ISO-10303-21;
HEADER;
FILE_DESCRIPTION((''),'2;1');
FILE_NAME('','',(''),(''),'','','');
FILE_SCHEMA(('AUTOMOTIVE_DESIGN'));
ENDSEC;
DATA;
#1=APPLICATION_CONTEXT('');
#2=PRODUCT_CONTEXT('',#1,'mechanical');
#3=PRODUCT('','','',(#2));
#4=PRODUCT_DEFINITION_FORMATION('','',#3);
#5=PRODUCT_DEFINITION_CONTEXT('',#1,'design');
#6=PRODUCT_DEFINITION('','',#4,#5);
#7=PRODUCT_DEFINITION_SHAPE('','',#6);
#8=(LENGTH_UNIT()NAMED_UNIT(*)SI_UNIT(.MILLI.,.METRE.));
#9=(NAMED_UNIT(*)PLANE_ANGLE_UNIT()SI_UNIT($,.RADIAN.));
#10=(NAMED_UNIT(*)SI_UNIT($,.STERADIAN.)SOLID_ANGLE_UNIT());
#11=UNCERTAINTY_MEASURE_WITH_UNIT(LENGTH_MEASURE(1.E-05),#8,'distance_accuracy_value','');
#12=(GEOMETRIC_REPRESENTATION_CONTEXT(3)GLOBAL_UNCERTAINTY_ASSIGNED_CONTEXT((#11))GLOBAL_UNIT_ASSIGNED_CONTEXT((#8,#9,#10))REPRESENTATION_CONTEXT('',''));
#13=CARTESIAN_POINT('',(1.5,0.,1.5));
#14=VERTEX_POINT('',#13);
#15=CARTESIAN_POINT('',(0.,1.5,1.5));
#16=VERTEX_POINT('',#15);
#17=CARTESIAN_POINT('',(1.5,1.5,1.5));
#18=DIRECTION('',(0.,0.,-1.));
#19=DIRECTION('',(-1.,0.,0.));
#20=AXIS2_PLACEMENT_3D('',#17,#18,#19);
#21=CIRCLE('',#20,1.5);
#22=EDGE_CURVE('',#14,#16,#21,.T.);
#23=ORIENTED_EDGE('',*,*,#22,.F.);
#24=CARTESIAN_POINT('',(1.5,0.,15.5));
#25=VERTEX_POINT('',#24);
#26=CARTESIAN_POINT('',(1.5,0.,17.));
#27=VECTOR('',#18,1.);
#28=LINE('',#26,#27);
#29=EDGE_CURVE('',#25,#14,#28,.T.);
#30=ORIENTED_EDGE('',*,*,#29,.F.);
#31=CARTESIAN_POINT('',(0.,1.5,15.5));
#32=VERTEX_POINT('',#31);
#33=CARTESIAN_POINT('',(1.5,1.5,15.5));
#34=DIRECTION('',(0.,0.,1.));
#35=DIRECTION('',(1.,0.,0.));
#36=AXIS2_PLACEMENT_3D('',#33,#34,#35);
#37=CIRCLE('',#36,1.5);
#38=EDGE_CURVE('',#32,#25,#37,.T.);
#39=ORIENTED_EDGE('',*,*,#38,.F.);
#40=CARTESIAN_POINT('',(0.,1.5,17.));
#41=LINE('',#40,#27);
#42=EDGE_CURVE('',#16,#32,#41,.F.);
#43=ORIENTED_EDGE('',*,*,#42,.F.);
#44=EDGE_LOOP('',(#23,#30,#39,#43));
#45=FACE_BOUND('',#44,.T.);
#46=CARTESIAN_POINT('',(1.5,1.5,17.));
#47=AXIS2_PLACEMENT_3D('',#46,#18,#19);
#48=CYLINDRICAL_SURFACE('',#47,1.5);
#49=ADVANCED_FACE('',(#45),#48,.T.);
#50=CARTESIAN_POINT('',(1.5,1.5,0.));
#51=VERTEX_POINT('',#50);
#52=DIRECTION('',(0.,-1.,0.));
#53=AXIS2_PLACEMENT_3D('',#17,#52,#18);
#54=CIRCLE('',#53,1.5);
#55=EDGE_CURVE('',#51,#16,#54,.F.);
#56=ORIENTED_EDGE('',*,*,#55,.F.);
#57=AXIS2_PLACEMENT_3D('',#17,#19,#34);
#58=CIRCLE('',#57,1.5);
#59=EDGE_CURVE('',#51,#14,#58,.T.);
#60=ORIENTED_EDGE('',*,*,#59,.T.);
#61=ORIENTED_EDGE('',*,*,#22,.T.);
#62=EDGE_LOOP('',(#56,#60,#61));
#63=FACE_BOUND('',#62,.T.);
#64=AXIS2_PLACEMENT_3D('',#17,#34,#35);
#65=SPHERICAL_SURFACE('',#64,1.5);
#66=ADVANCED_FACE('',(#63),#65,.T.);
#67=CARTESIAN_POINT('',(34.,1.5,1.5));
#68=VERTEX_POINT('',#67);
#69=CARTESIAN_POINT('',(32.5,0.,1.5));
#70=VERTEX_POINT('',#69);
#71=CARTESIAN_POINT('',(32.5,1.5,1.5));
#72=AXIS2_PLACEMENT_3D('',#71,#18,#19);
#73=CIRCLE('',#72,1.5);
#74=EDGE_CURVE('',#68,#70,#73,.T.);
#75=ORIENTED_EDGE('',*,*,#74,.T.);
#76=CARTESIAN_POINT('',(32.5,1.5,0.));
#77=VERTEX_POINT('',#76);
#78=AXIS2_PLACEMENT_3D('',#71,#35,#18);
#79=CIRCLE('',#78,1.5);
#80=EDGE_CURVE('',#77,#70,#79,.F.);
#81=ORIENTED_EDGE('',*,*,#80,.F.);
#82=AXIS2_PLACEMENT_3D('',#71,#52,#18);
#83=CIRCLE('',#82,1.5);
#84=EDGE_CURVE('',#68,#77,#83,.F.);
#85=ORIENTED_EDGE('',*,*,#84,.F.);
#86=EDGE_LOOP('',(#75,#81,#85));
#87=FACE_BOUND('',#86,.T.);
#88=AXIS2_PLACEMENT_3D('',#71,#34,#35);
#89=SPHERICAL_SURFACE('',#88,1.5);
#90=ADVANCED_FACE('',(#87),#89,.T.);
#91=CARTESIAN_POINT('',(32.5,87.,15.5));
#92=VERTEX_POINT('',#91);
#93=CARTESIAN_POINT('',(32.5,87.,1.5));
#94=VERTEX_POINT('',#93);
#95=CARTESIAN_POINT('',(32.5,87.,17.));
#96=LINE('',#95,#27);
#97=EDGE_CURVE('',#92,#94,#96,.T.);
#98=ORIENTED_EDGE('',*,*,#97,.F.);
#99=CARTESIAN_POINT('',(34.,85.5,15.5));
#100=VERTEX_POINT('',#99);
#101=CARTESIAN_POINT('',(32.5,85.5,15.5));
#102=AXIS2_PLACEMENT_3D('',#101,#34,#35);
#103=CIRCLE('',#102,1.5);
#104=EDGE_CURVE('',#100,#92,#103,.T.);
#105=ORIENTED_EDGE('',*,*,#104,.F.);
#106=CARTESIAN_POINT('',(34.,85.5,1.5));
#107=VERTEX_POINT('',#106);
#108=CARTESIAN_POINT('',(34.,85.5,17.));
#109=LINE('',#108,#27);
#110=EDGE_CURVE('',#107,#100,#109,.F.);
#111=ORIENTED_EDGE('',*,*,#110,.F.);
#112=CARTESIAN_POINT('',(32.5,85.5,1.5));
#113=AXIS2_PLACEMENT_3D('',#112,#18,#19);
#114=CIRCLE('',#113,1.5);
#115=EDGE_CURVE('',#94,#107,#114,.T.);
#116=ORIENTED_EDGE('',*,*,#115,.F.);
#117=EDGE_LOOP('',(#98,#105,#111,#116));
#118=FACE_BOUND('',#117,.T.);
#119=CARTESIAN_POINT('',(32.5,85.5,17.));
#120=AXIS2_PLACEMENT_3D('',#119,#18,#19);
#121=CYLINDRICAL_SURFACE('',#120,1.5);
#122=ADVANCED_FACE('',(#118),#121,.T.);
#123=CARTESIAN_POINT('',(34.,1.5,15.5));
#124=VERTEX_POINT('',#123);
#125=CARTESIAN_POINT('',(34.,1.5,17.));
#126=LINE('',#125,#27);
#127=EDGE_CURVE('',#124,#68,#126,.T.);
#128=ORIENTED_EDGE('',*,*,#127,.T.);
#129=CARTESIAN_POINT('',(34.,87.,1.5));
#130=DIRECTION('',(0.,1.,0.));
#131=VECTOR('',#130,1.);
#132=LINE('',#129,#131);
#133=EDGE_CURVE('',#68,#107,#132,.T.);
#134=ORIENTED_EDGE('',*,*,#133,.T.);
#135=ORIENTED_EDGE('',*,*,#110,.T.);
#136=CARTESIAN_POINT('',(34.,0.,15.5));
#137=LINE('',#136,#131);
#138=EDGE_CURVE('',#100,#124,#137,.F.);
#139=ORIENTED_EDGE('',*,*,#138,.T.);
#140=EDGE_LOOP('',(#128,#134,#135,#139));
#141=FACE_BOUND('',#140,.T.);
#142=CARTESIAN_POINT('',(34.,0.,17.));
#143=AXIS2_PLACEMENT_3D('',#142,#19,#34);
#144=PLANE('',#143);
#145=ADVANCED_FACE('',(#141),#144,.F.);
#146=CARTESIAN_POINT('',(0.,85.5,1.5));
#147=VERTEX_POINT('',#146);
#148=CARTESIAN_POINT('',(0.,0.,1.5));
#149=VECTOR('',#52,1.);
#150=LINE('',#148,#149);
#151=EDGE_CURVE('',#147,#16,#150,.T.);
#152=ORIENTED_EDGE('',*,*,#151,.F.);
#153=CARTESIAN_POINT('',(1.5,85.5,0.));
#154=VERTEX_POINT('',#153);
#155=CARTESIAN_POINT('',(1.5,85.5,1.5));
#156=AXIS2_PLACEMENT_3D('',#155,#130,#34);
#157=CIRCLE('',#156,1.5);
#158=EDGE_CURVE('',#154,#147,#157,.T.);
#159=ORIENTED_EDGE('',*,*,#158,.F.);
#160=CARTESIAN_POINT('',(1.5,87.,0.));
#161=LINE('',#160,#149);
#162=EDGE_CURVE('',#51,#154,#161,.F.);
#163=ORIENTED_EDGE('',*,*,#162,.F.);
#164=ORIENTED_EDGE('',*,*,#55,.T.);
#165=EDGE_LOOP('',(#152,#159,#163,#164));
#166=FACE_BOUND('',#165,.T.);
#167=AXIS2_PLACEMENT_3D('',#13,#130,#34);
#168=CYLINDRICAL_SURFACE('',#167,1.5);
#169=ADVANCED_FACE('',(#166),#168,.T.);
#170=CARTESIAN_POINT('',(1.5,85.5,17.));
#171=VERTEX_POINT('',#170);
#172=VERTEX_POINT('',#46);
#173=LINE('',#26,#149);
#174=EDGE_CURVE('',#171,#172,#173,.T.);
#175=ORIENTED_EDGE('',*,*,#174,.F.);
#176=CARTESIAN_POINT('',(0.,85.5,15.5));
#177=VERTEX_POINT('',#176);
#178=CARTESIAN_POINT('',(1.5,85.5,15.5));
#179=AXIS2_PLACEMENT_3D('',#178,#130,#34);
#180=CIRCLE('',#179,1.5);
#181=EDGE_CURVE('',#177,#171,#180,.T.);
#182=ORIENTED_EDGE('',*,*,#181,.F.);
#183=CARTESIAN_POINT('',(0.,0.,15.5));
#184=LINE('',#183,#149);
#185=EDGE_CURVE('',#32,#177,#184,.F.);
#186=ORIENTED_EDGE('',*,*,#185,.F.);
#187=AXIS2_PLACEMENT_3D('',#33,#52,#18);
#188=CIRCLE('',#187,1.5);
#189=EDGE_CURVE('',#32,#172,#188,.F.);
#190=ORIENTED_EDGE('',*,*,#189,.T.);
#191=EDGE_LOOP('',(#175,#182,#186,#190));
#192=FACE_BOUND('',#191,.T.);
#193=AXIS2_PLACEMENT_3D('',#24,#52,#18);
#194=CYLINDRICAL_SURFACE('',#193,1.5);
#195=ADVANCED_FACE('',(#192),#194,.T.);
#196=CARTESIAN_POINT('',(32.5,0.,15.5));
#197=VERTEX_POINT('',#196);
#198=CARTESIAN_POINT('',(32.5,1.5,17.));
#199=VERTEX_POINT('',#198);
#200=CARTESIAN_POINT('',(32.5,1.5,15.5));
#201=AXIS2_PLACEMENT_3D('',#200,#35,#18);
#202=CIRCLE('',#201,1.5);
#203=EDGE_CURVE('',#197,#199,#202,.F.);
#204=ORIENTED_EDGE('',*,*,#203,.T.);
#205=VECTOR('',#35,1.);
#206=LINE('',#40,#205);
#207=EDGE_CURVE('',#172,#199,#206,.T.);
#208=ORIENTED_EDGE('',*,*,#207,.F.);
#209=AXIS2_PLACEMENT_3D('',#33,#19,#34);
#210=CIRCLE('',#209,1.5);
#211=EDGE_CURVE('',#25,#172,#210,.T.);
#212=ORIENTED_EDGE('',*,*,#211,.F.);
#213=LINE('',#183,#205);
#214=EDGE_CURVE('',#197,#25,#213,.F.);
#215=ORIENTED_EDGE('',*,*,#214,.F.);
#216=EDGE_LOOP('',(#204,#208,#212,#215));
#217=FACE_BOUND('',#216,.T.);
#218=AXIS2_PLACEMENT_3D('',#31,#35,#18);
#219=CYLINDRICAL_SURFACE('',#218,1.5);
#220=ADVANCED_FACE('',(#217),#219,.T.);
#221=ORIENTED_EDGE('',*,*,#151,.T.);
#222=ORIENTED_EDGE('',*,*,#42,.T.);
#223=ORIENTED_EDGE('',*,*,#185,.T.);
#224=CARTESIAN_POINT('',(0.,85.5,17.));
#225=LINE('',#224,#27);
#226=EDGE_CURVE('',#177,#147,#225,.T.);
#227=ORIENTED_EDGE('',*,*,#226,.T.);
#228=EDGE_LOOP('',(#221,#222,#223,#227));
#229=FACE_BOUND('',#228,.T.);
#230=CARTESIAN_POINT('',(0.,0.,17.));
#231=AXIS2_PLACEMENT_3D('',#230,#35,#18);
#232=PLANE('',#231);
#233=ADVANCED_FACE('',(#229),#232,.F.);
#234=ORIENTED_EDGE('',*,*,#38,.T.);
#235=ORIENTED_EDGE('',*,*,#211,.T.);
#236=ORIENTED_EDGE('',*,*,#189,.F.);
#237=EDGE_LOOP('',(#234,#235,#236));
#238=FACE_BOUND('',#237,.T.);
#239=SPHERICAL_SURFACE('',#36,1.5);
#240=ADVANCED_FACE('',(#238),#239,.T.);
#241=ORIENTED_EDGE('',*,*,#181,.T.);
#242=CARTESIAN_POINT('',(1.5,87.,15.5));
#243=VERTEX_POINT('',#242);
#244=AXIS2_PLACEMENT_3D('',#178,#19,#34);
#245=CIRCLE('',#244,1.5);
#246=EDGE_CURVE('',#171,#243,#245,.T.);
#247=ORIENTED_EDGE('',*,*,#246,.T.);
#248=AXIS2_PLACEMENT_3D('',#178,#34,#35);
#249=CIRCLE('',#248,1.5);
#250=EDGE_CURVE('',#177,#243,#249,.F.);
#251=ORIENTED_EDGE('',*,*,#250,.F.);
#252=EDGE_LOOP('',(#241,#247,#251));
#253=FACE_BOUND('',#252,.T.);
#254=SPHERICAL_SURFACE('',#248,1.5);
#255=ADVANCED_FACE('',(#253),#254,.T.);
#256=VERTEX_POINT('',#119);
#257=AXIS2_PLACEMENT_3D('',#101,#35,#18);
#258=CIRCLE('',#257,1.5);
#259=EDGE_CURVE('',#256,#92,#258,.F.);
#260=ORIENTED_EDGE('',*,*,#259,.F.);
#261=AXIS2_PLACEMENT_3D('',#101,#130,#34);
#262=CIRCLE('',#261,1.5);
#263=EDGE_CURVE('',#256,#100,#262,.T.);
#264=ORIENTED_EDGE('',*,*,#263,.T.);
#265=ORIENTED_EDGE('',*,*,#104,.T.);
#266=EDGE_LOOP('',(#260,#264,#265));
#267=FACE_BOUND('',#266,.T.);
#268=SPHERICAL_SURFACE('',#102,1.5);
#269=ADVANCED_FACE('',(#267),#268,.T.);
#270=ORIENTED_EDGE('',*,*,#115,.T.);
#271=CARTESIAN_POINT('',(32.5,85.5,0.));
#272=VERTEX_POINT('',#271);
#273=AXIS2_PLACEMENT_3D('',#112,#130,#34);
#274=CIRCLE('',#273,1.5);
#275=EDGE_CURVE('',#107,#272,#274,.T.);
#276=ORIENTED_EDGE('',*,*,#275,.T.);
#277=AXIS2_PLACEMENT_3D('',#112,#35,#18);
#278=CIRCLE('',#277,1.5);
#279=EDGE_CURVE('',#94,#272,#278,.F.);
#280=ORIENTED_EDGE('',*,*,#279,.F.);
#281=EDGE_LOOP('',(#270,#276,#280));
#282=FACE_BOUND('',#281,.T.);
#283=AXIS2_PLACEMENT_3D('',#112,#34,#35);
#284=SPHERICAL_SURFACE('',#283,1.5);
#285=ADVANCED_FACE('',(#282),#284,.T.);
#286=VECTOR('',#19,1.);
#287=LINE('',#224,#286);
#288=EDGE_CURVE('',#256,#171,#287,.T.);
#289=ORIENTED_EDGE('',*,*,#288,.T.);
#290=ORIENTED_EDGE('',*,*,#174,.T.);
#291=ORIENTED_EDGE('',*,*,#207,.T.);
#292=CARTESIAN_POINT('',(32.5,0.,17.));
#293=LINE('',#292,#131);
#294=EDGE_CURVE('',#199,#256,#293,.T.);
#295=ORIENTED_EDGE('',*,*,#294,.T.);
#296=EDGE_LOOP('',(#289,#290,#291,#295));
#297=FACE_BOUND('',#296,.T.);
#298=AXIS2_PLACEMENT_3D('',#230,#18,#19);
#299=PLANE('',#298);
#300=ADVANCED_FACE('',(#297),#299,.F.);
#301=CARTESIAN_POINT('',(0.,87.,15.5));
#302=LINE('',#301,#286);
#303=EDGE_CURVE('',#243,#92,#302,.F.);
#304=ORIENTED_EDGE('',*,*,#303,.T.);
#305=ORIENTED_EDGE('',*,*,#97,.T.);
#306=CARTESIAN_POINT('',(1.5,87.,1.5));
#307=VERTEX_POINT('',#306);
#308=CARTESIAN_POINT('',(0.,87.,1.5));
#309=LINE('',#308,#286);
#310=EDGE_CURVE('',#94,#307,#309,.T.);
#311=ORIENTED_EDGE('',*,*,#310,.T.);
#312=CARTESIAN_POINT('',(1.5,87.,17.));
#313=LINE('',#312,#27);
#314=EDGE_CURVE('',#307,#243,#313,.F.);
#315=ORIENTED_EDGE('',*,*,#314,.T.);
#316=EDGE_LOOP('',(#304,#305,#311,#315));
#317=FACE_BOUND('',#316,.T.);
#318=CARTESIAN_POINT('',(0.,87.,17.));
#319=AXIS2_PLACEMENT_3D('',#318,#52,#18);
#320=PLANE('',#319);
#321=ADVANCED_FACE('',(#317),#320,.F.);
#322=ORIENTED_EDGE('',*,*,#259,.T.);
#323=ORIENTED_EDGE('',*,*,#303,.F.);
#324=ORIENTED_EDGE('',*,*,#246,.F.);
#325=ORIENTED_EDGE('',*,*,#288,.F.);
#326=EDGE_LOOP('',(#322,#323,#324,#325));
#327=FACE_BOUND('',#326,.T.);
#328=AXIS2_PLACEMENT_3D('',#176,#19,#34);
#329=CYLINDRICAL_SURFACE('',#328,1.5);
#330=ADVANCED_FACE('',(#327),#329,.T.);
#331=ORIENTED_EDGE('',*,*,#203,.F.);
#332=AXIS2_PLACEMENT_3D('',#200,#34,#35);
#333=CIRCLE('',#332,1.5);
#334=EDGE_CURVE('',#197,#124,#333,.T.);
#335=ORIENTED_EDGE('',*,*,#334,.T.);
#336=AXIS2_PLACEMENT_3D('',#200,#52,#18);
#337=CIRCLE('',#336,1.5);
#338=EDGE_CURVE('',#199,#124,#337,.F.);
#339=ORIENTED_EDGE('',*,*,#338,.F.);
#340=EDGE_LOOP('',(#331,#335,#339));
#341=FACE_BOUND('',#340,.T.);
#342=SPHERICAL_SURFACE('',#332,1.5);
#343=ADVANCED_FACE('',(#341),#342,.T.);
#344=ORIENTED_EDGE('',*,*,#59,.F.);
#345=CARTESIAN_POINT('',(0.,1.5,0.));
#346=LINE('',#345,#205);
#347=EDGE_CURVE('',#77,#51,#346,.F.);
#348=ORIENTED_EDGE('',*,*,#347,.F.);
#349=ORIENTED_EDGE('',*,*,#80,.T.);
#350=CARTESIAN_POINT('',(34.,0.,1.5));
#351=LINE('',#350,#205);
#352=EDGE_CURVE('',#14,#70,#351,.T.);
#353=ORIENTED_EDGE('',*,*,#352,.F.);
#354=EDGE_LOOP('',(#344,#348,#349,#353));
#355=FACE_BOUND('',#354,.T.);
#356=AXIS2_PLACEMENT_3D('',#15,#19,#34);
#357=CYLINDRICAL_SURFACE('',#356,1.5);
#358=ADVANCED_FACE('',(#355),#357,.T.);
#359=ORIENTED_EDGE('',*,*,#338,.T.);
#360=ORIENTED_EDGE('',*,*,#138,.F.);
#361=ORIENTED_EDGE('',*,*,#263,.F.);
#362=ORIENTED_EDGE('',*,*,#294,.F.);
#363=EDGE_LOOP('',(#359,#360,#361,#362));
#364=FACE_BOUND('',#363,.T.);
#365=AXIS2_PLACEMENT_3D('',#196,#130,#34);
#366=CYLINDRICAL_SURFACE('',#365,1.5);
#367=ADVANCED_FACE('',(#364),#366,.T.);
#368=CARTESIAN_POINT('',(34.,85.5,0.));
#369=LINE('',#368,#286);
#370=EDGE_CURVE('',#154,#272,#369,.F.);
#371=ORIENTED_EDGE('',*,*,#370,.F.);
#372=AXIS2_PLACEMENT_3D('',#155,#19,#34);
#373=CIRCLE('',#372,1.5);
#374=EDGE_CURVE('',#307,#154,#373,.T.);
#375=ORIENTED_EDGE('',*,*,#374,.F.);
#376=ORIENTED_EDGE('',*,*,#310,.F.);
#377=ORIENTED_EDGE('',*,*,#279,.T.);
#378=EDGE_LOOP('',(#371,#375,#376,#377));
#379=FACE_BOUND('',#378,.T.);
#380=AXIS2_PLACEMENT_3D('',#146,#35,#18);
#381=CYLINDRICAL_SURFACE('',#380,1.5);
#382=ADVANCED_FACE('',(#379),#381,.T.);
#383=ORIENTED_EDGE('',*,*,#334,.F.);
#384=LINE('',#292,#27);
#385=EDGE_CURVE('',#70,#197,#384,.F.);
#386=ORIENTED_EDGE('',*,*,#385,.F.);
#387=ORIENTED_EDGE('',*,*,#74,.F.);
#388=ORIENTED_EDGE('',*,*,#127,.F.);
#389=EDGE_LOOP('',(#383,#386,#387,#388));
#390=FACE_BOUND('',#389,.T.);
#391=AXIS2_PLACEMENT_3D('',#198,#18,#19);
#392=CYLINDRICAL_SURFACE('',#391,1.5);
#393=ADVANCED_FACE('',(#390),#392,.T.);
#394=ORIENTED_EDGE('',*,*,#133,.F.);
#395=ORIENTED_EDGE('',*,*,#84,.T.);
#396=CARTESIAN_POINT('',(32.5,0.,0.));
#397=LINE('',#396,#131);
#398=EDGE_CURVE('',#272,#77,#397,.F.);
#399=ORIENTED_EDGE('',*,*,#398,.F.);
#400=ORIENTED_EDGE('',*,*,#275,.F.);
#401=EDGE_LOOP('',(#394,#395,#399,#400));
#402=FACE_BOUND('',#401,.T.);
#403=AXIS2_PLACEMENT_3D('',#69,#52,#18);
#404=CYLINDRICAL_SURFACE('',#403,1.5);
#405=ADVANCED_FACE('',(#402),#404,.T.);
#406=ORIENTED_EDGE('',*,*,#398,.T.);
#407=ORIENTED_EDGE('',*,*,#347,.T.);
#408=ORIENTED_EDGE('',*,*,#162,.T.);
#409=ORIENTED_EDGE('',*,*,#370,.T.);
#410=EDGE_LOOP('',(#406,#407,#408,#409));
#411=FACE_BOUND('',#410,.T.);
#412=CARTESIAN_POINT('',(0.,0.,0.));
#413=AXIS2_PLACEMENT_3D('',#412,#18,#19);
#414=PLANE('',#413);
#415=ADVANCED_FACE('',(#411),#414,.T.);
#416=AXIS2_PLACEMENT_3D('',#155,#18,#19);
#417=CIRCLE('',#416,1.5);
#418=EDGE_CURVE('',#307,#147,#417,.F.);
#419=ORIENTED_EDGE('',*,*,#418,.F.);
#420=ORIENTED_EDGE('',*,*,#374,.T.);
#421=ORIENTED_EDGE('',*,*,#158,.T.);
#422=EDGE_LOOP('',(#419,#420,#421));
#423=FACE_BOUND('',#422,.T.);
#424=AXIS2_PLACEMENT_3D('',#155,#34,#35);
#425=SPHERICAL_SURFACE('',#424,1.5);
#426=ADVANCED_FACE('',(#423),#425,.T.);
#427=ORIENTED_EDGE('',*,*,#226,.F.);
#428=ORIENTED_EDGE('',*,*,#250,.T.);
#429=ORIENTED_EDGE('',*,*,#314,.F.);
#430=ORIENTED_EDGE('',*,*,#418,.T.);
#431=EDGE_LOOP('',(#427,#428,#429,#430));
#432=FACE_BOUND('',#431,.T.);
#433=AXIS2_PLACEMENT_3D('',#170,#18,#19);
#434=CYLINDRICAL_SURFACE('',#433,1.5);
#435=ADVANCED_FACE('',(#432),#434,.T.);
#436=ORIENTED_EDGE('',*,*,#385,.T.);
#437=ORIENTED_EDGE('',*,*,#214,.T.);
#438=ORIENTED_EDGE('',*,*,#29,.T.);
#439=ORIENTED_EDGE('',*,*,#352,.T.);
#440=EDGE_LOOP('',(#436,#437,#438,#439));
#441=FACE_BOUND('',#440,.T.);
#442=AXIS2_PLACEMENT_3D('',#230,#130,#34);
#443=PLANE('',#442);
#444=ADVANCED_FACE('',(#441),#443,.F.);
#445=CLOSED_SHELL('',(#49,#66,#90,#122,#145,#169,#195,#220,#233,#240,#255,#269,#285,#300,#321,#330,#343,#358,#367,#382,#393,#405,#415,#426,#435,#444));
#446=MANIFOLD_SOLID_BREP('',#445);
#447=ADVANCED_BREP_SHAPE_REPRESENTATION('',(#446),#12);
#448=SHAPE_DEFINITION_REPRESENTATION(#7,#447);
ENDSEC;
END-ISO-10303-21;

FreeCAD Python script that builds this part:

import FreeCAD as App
import Part
import Sketcher
Q = App.Units.Quantity


def add_polygon(sketch, points):
    """Adds a closed chain of lines whose ends are joined by coincident constraints."""
    first, n = sketch.GeometryCount, len(points)
    for a, b in zip(points, points[1:] + points[:1]):
        sketch.addGeometry(Part.LineSegment(App.Vector(*a, 0), App.Vector(*b, 0)), False)
    for i in range(n):
        sketch.addConstraint(Sketcher.Constraint("Coincident", first + i, 2, first + (i + 1) % n, 1))

doc = App.newDocument("Part")
body = doc.addObject("PartDesign::Body", "Body")

sketch1 = body.newObject("Sketcher::SketchObject", "Sketch")
sketch1.AttachmentSupport = (doc.getObject("XY_Plane"), [""])
sketch1.MapMode = "FlatFace"
add_polygon(sketch1, [(0, 87), (0, 0), (34, 0), (34, 87)])
sketch1.addConstraint([
    Sketcher.Constraint("Vertical", 0),
    Sketcher.Constraint("Horizontal", 1),
    Sketcher.Constraint("Vertical", 2),
    Sketcher.Constraint("Horizontal", 3),
    Sketcher.Constraint("Coincident", 0, 2, -1, 1),
    Sketcher.Constraint("DistanceX", 1, 1, 1, 2, Q("34 mm")),
    Sketcher.Constraint("DistanceY", 0, 2, 0, 1, Q("87 mm")),
])
pad1 = body.newObject("PartDesign::Pad", "Pad")
pad1.Profile = sketch1
pad1.Length = 17
doc.recompute()

fillet = body.newObject("PartDesign::Fillet", "Fillet")
fillet.Base = (pad1, ["Edge1"])
fillet.UseAllEdges = True
fillet.Radius = 1.5

doc.recompute()
